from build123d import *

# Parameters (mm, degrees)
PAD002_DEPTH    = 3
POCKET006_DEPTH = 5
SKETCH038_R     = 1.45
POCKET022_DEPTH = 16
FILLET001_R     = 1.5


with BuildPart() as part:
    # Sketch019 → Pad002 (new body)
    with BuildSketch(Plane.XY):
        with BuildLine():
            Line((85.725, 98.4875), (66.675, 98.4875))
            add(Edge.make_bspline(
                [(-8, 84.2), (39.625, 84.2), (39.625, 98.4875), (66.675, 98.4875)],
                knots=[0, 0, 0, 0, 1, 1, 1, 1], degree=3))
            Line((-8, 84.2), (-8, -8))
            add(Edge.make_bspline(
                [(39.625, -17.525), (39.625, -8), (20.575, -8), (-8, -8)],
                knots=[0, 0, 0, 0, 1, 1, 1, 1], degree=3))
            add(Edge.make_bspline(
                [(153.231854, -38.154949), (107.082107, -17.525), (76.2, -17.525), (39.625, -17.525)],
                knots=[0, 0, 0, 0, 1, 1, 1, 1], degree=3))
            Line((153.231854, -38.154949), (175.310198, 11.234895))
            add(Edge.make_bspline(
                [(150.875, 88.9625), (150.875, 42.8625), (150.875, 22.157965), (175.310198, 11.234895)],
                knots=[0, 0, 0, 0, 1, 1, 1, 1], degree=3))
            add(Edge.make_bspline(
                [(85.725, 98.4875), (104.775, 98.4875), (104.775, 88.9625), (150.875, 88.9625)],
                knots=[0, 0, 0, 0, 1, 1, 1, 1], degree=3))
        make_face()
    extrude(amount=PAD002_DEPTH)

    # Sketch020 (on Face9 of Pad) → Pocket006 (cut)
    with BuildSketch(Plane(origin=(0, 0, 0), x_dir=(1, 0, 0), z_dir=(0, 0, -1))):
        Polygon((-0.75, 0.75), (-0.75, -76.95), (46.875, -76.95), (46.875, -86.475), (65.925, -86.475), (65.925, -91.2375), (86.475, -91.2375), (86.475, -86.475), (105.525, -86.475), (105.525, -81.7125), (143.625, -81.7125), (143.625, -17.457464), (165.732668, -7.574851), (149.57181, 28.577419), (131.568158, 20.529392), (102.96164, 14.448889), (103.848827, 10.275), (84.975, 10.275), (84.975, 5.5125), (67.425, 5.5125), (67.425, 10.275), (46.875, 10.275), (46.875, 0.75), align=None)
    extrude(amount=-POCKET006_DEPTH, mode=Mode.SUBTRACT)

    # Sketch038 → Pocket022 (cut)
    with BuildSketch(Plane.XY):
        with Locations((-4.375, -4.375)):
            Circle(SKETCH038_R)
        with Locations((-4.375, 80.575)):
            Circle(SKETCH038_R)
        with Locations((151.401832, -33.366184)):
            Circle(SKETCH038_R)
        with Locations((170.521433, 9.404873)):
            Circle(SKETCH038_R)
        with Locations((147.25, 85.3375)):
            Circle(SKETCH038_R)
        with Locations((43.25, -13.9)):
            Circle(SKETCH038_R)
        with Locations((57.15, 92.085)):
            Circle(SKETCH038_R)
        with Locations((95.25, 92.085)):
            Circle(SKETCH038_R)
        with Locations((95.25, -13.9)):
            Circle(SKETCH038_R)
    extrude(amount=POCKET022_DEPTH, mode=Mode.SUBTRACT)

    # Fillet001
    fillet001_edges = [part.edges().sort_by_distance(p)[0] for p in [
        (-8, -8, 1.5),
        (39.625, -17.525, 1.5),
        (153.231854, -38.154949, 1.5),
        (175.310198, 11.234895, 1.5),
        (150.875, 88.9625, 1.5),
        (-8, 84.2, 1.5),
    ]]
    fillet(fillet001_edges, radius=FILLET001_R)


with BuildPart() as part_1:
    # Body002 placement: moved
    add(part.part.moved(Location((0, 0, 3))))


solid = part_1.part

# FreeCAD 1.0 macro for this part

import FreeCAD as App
import Part
import Sketcher

V = App.Vector
Q = App.Units.Quantity


def edges_at(feature, points):
    """Names of the edges that pass closest to the given points."""
    edges = feature.Shape.Edges
    near = lambda p: min(range(len(edges)), key=lambda i: edges[i].distToShape(Part.Vertex(*p))[0])
    return sorted({f"Edge{near(p) + 1}" for p in points})


def add_polygon(sketch, points):
    """Adds a closed chain of lines whose ends are joined by coincident constraints."""
    first, n = sketch.GeometryCount, len(points)
    for a, b in zip(points, points[1:] + points[:1]):
        sketch.addGeometry(Part.LineSegment(App.Vector(*a, 0), App.Vector(*b, 0)), False)
    for i in range(n):
        sketch.addConstraint(Sketcher.Constraint("Coincident", first + i, 2, first + (i + 1) % n, 1))

doc = App.newDocument("Part")
body = doc.addObject("PartDesign::Body", "Body")

# Sketch on XY plane
sketch1 = doc.addObject("Sketcher::SketchObject", "Sketch")
body.addObject(sketch1)
sketch1.AttachmentSupport = (doc.XY_Plane, [""])
sketch1.MapMode = "FlatFace"
sketch1.addGeometry([
    Part.LineSegment(V(85.725, 98.4875, 0), V(66.675, 98.4875, 0)),  # 0
    Part.BSplineCurve([V(-8, 84.2, 0), V(39.625, 84.2, 0), V(39.625, 98.4875, 0), V(66.675, 98.4875, 0)], [4, 4], [0, 1], False, 3, [1, 1, 1, 1], False),  # 1
    Part.LineSegment(V(-8, 84.2, 0), V(-8, -8, 0)),  # 2
    Part.BSplineCurve([V(39.625, -17.525, 0), V(39.625, -8, 0), V(20.575, -8, 0), V(-8, -8, 0)], [4, 4], [0, 1], False, 3, [1, 1, 1, 1], False),  # 3
    Part.BSplineCurve([V(153.231854, -38.154949, 0), V(107.082107, -17.525, 0), V(76.2, -17.525, 0), V(39.625, -17.525, 0)], [4, 4], [0, 1], False, 3, [1, 1, 1, 1], False),  # 4
    Part.LineSegment(V(153.231854, -38.154949, 0), V(175.310198, 11.234895, 0)),  # 5
    Part.BSplineCurve([V(150.875, 88.9625, 0), V(150.875, 42.8625, 0), V(150.875, 22.157965, 0), V(175.310198, 11.234895, 0)], [4, 4], [0, 1], False, 3, [1, 1, 1, 1], False),  # 6
    Part.BSplineCurve([V(85.725, 98.4875, 0), V(104.775, 98.4875, 0), V(104.775, 88.9625, 0), V(150.875, 88.9625, 0)], [4, 4], [0, 1], False, 3, [1, 1, 1, 1], False),  # 7
], False)
sketch1.addConstraint([
    Sketcher.Constraint("Block", 1),
    Sketcher.Constraint("Block", 3),
    Sketcher.Constraint("Block", 4),
    Sketcher.Constraint("Block", 6),
    Sketcher.Constraint("Block", 7),
    Sketcher.Constraint("Coincident", 0, 2, 1, 2),
    Sketcher.Constraint("Coincident", 1, 1, 2, 1),
    Sketcher.Constraint("Coincident", 2, 2, 3, 2),
    Sketcher.Constraint("Coincident", 4, 1, 5, 1),
    Sketcher.Constraint("Coincident", 5, 2, 6, 2),
    Sketcher.Constraint("Coincident", 7, 1, 0, 1),
])
pad1 = doc.addObject("PartDesign::Pad", "Pad")
body.addObject(pad1)
pad1.Profile = sketch1
pad1.Length = 3

# Sketch on XY plane
sketch2 = doc.addObject("Sketcher::SketchObject", "Sketch001")
body.addObject(sketch2)
sketch2.AttachmentSupport = (doc.XY_Plane, [""])
sketch2.MapMode = "FlatFace"
add_polygon(sketch2, [(-0.8, -0.8), (-0.8, 77), (46.9, 77), (46.9, 86.5), (65.9, 86.5), (65.9, 91.2), (86.5, 91.2), (86.5, 86.5), (105.5, 86.5), (105.5, 81.7), (143.6, 81.7), (143.6, 17.5), (165.7, 7.6), (149.6, -28.6), (131.6, -20.5), (103, -14.4), (103.8, -10.3), (85, -10.3), (85, -5.5), (67.4, -5.5), (67.4, -10.3), (46.9, -10.3), (46.9, -0.8)])  # lines 0-22
sketch2.addConstraint([
    Sketcher.Constraint("Vertical", 0),
    Sketcher.Constraint("Horizontal", 1),
    Sketcher.Constraint("Vertical", 2),
    Sketcher.Constraint("Horizontal", 3),
    Sketcher.Constraint("Vertical", 4),
    Sketcher.Constraint("Horizontal", 5),
    Sketcher.Constraint("Vertical", 6),
    Sketcher.Constraint("Horizontal", 7),
    Sketcher.Constraint("Vertical", 8),
    Sketcher.Constraint("Horizontal", 9),
    Sketcher.Constraint("Vertical", 10),
    Sketcher.Constraint("Horizontal", 16),
    Sketcher.Constraint("Vertical", 17),
    Sketcher.Constraint("Horizontal", 18),
    Sketcher.Constraint("Vertical", 19),
    Sketcher.Constraint("Horizontal", 20),
    Sketcher.Constraint("Vertical", 21),
    Sketcher.Constraint("Horizontal", 22),
    Sketcher.Constraint("Perpendicular", 11, 12),
    Sketcher.Constraint("Perpendicular", 12, 13),
    Sketcher.Constraint("Perpendicular", 14, 15),
    Sketcher.Constraint("Horizontal", 3, 2, 6, 2),
    Sketcher.Constraint("Horizontal", 16, 2, 19, 2),
    Sketcher.Constraint("Vertical", 2, 2, 20, 2),
    Sketcher.Constraint("Equal", 3, 7),
    Sketcher.Constraint("Equal", 5, 20),
    Sketcher.Constraint("Equal", 6, 8),
    Sketcher.Constraint("Equal", 8, 17),
    Sketcher.Constraint("Equal", 2, 21),
    Sketcher.Constraint("Angle", 14, Q("168 deg")),
    Sketcher.Constraint("DistanceX", 9, 1, 9, 2, 38.1),
    Sketcher.Constraint("DistanceY", 0, 1, 0, 2, 77.7),
    Sketcher.Constraint("Distance", 12, 39.599999),
    Sketcher.Constraint("DistanceX", 3, 1, 3, 2, 19.05),
    Sketcher.Constraint("DistanceX", 5, 1, 5, 2, 20.55),
    Sketcher.Constraint("DistanceX", 18, 2, 18, 1, 17.55),
    Sketcher.Constraint("DistanceX", 1, 1, 1, 2, 47.625),
    Sketcher.Constraint("DistanceY", 2, 1, 2, 2, 9.525),
    Sketcher.Constraint("DistanceX", 0, 2, -1, 1, 0.75),
    Sketcher.Constraint("DistanceY", -1, 1, 0, 2, 76.95),
    Sketcher.Constraint("DistanceY", 4, 1, 4, 2, 4.7625),
    Sketcher.Constraint("DistanceX", 16, 2, 16, 1, 18.873827),
    Sketcher.Constraint("DistanceY", 10, 2, 10, 1, 64.255036),
    Sketcher.Constraint("DistanceY", -1, 1, 11, 2, 7.574851),
    Sketcher.Constraint("DistanceX", -1, 1, 12, 2, 149.57181),
    Sketcher.Constraint("DistanceX", -1, 1, 13, 2, 131.568158),
])
pocket1 = doc.addObject("PartDesign::Pocket", "Pocket")
body.addObject(pocket1)
pocket1.Profile = sketch2
pocket1.Length = 5
pocket1.Reversed = True

# Sketch on XY plane
sketch3 = doc.addObject("Sketcher::SketchObject", "Sketch002")
body.addObject(sketch3)
sketch3.AttachmentSupport = (doc.XY_Plane, [""])
sketch3.MapMode = "FlatFace"
sketch3.addGeometry([
    Part.Circle(V(-4.4, -4.4, 0), V(0, 0, 1), 1.4),  # 0
    Part.Circle(V(-4.4, 80.6, 0), V(0, 0, 1), 1.4),  # 1
    Part.Circle(V(151.4, -33.4, 0), V(0, 0, 1), 1.4),  # 2
    Part.Circle(V(170.5, 9.4, 0), V(0, 0, 1), 1.4),  # 3
    Part.Circle(V(147.2, 85.3, 0), V(0, 0, 1), 1.4),  # 4
    Part.Circle(V(43.2, -13.9, 0), V(0, 0, 1), 1.4),  # 5
    Part.Circle(V(57.1, 92.1, 0), V(0, 0, 1), 1.4),  # 6
    Part.Circle(V(95.2, 92.1, 0), V(0, 0, 1), 1.4),  # 7
    Part.Circle(V(95.2, -13.9, 0), V(0, 0, 1), 1.4),  # 8
], False)
sketch3.addConstraint([
    Sketcher.Constraint("Equal", 0, 1),
    Sketcher.Constraint("Equal", 1, 2),
    Sketcher.Constraint("Equal", 2, 3),
    Sketcher.Constraint("Equal", 3, 4),
    Sketcher.Constraint("Equal", 4, 5),
    Sketcher.Constraint("Equal", 5, 6),
    Sketcher.Constraint("Equal", 6, 7),
    Sketcher.Constraint("Equal", 7, 8),
    Sketcher.Constraint("Horizontal", 6, 3, 7, 3),
    Sketcher.Constraint("Horizontal", 5, 3, 8, 3),
    Sketcher.Constraint("Vertical", 0, 3, 1, 3),
    Sketcher.Constraint("Vertical", 7, 3, 8, 3),
    Sketcher.Constraint("Diameter", 0, 2.9),
    Sketcher.Constraint("DistanceX", 5, 3, 4, 3, 104.0),
    Sketcher.Constraint("DistanceX", 7, 3, 4, 3, 52.0),
    Sketcher.Constraint("DistanceY", 5, 3, -1, 1, 13.9),
    Sketcher.Constraint("DistanceX", 6, 3, 4, 3, 90.1),
    Sketcher.Constraint("DistanceX", -1, 1, 4, 3, 147.25),
    Sketcher.Constraint("DistanceY", 0, 3, 1, 3, 84.95),
    Sketcher.Constraint("DistanceY", 1, 3, 6, 3, 11.51),
    Sketcher.Constraint("DistanceX", 0, 3, -1, 1, 4.375),
    Sketcher.Constraint("DistanceY", 0, 3, -1, 1, 4.375),
    Sketcher.Constraint("DistanceY", -1, 1, 4, 3, 85.3375),
    Sketcher.Constraint("DistanceX", 2, 3, 3, 3, 19.119601),
    Sketcher.Constraint("DistanceX", -1, 1, 2, 3, 151.401832),
    Sketcher.Constraint("DistanceY", 2, 3, -1, 1, 33.366184),
    Sketcher.Constraint("DistanceY", -1, 1, 3, 3, 9.404873),
])
pocket2 = doc.addObject("PartDesign::Pocket", "Pocket001")
body.addObject(pocket2)
pocket2.Profile = sketch3
pocket2.Length = 16
pocket2.Reversed = True
doc.recompute()

fillet = doc.addObject("PartDesign::Fillet", "Fillet")
body.addObject(fillet)
fillet.Base = (pocket2, edges_at(pocket2, [
    (-8, -8, 1.5),
    (39.625, -17.525, 1.5),
    (153.232, -38.155, 1.5),
    (175.31, 11.235, 1.5),
    (150.875, 88.963, 1.5),
    (-8, 84.2, 1.5),
]))
fillet.Radius = 1.5
body2 = doc.addObject("PartDesign::Body", "Body001")
doc.recompute()

body.Placement = App.Placement(V(0, 0, 3), App.Rotation(V(0, 0, 1), 0))
boolean = doc.addObject("PartDesign::Boolean", "Boolean")
body2.addObject(boolean)
boolean.Type = "Fuse"
boolean.addObjects([body])

doc.recompute()
